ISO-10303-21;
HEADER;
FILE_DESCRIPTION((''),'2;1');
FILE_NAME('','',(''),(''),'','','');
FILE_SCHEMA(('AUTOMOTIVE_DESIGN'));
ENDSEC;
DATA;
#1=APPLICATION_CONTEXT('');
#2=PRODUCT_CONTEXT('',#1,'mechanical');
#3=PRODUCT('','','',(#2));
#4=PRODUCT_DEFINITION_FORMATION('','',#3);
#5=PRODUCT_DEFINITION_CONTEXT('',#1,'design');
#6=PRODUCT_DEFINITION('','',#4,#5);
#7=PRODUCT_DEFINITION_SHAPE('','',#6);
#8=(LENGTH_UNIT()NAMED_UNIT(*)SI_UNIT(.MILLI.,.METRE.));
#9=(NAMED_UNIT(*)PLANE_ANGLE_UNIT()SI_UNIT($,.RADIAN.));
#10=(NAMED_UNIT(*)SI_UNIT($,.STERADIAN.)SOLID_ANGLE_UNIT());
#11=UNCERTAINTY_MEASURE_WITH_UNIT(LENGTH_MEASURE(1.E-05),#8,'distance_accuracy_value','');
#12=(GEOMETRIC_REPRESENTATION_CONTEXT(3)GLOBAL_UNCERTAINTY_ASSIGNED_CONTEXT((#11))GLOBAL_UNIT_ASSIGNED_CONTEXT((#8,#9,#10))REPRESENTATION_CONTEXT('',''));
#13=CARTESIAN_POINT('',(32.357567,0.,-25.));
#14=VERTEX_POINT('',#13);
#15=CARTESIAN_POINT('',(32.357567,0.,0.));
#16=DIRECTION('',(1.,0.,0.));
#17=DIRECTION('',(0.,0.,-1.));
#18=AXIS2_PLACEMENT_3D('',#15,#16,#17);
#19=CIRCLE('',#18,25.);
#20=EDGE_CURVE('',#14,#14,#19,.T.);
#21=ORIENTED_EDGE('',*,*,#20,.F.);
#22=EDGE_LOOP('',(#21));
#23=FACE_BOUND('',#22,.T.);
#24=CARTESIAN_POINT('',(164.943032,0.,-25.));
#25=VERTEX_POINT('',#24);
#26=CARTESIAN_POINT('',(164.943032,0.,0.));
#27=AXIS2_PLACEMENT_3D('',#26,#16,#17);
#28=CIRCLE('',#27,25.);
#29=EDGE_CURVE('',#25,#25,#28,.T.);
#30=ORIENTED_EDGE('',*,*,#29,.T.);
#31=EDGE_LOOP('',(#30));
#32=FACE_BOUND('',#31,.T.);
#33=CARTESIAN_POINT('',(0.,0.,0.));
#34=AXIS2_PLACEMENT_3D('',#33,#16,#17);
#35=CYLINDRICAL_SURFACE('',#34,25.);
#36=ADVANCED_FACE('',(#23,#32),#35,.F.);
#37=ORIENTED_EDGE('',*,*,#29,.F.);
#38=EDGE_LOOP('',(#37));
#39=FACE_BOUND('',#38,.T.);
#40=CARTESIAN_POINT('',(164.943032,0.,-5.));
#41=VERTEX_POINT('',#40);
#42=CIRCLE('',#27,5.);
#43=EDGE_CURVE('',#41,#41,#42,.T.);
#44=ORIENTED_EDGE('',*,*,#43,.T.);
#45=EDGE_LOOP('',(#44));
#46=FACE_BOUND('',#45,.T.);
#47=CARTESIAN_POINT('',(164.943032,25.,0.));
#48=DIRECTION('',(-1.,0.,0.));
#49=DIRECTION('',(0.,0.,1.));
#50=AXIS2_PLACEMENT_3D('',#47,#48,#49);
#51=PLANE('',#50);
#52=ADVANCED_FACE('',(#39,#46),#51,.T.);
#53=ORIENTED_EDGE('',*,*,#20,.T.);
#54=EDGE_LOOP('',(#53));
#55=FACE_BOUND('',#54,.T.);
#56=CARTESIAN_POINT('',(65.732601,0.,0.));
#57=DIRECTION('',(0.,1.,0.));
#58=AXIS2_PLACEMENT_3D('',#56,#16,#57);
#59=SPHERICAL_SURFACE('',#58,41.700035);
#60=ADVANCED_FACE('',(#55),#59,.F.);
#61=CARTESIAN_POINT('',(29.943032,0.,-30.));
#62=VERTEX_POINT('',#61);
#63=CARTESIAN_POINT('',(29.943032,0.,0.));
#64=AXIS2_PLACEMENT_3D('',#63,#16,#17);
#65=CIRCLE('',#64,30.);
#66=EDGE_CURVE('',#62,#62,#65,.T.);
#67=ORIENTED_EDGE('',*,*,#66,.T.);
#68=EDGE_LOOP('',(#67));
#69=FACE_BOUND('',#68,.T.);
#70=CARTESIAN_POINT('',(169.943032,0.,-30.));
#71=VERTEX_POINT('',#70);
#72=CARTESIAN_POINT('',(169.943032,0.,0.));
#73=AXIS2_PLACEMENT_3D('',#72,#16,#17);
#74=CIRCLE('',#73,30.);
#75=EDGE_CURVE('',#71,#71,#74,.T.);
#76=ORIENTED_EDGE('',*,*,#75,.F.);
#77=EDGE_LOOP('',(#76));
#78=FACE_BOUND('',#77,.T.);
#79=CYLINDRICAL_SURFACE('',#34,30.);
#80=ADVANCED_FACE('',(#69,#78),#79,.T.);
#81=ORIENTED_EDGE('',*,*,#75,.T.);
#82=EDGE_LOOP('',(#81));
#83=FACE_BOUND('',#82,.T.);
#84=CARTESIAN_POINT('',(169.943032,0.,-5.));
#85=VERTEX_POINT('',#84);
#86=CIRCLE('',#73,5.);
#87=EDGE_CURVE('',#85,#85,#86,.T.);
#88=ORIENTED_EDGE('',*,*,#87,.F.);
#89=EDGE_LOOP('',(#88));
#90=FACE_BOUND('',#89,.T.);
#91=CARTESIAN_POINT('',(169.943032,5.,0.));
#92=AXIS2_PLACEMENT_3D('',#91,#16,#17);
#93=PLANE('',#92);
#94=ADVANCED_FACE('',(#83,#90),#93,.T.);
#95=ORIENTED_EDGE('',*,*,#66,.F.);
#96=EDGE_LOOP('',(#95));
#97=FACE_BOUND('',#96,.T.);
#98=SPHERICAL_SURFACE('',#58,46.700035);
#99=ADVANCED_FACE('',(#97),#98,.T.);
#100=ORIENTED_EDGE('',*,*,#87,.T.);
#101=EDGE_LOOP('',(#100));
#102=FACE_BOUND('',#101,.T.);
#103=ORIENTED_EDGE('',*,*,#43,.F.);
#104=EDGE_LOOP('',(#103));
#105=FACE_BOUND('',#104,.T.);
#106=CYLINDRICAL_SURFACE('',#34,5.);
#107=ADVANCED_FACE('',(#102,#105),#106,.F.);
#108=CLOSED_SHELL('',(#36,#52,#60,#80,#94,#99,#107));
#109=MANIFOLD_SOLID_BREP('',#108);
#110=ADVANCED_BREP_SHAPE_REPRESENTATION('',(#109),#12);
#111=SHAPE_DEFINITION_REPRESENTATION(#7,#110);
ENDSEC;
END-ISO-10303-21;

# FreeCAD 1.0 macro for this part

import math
import FreeCAD as App
import Part
import Sketcher

V = App.Vector

doc = App.newDocument("Part")
body = doc.addObject("PartDesign::Body", "Body")

sketch1 = body.newObject("Sketcher::SketchObject", "Sketch")
sketch1.AttachmentSupport = (doc.getObject("XY_Plane"), [""])
sketch1.MapMode = "FlatFace"
sketch1.addGeometry([
    Part.LineSegment(V(170, 5, 0), V(170, 30, 0)),
    Part.LineSegment(V(170, 30, 0), V(30, 30, 0)),
    Part.ArcOfCircle(Part.Circle(V(66, 0, 0), V(0, 0, 1), 47), math.radians(140), math.radians(180)),
    Part.LineSegment(V(19, 0, 0), V(24, 0, 0)),
    Part.ArcOfCircle(Part.Circle(V(66, 0, 0), V(0, 0, 1), 42), math.radians(143), math.radians(180)),
    Part.LineSegment(V(32, 25, 0), V(165, 25, 0)),
    Part.LineSegment(V(165, 25, 0), V(165, 5, 0)),
    Part.LineSegment(V(165, 5, 0), V(170, 5, 0)),
], False)
sketch1.addConstraint([
    Sketcher.Constraint("Coincident", 0, 2, 1, 1),
    Sketcher.Constraint("Coincident", 1, 2, 2, 1),
    Sketcher.Constraint("Coincident", 2, 2, 3, 1),
    Sketcher.Constraint("Coincident", 3, 2, 4, 2),
    Sketcher.Constraint("Coincident", 4, 1, 5, 1),
    Sketcher.Constraint("Coincident", 5, 2, 6, 1),
    Sketcher.Constraint("Coincident", 6, 2, 7, 1),
    Sketcher.Constraint("Coincident", 7, 2, 0, 1),
    Sketcher.Constraint("Vertical", 0),
    Sketcher.Constraint("Horizontal", 1),
    Sketcher.Constraint("Horizontal", 3),
    Sketcher.Constraint("Horizontal", 5),
    Sketcher.Constraint("Vertical", 6),
    Sketcher.Constraint("Horizontal", 7),
    Sketcher.Constraint("Coincident", 4, 3, 2, 3),
    Sketcher.Constraint("PointOnObject", 2, 3, -1),
    Sketcher.Constraint("PointOnObject", 2, 2, -1),
    Sketcher.Constraint("Equal", 3, 7),
    Sketcher.Constraint("DistanceX", 1, 2, 1, 1, 140.0),
    Sketcher.Constraint("DistanceX", 3, 1, 3, 2, 5.0),
    Sketcher.Constraint("DistanceY", 0, 1, 0, 2, 25.0),
    Sketcher.Constraint("DistanceY", 6, 2, 6, 1, 20.0),
    Sketcher.Constraint("DistanceY", -1, 1, 0, 2, 30.0),
    Sketcher.Constraint("Radius", 2, 46.700035),
    Sketcher.Constraint("DistanceX", -1, 1, 2, 3, 65.732601),
])
revolution = body.newObject("PartDesign::Revolution", "Revolution")
revolution.Profile = sketch1
revolution.ReferenceAxis = (sketch1, ["H_Axis"])
revolution.Angle = 360

doc.recompute()
